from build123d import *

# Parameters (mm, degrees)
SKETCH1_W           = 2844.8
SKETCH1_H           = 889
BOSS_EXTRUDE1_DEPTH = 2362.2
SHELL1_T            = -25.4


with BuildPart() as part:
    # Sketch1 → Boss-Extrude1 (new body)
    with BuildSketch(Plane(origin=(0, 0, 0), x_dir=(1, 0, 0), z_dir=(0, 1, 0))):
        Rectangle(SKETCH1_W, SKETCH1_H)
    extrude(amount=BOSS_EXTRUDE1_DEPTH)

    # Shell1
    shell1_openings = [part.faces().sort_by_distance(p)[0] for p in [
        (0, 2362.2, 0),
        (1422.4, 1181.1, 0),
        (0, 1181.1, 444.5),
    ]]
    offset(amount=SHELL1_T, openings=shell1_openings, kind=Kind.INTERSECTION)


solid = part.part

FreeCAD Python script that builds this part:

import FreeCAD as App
import Part
import Sketcher
Q = App.Units.Quantity


def faces_at(feature, points):
    """Names of the faces that lie closest to the given points."""
    faces = feature.Shape.Faces
    near = lambda p: min(range(len(faces)), key=lambda i: faces[i].distToShape(Part.Vertex(*p))[0])
    return sorted({f"Face{near(p) + 1}" for p in points})

doc = App.newDocument("Part")
body = doc.addObject("PartDesign::Body", "Body")

# Sketch on XZ plane
sketch1 = body.newObject("Sketcher::SketchObject", "Sketch")
sketch1.AttachmentSupport = (doc.getObject("XZ_Plane"), [""])
sketch1.MapMode = "FlatFace"
sketch1.addGeometry([
    Part.LineSegment(App.Vector(-1422, -444, 0), App.Vector(-1422, 444, 0)),
    Part.LineSegment(App.Vector(-1422, 444, 0), App.Vector(1422, 444, 0)),
    Part.LineSegment(App.Vector(1422, 444, 0), App.Vector(1422, -444, 0)),
    Part.LineSegment(App.Vector(1422, -444, 0), App.Vector(-1422, -444, 0)),
], False)
sketch1.addConstraint([
    Sketcher.Constraint("Coincident", 0, 2, 1, 1),
    Sketcher.Constraint("Coincident", 1, 2, 2, 1),
    Sketcher.Constraint("Coincident", 2, 2, 3, 1),
    Sketcher.Constraint("Coincident", 3, 2, 0, 1),
    Sketcher.Constraint("Vertical", 0),
    Sketcher.Constraint("Horizontal", 1),
    Sketcher.Constraint("Vertical", 2),
    Sketcher.Constraint("Horizontal", 3),
    Sketcher.Constraint("Symmetric", 0, 2, 2, 2, -1, 1),
    Sketcher.Constraint("DistanceX", 1, 1, 1, 2, Q("112 in")),
    Sketcher.Constraint("DistanceY", 0, 1, 0, 2, Q("35 in")),
])
pad1 = body.newObject("PartDesign::Pad", "Pad")
pad1.Profile = sketch1
pad1.Length = Q("93 in")
pad1.Reversed = True
doc.recompute()

thickness = body.newObject("PartDesign::Thickness", "Thickness")
thickness.Base = (pad1, faces_at(pad1, [(0, 2362.2, 0), (1422.4, 1181.1, 0), (0, 1181.1, 444.5)]))
thickness.Value = Q("1 in")
thickness.Reversed = True
thickness.Join = "Intersection"

doc.recompute()
